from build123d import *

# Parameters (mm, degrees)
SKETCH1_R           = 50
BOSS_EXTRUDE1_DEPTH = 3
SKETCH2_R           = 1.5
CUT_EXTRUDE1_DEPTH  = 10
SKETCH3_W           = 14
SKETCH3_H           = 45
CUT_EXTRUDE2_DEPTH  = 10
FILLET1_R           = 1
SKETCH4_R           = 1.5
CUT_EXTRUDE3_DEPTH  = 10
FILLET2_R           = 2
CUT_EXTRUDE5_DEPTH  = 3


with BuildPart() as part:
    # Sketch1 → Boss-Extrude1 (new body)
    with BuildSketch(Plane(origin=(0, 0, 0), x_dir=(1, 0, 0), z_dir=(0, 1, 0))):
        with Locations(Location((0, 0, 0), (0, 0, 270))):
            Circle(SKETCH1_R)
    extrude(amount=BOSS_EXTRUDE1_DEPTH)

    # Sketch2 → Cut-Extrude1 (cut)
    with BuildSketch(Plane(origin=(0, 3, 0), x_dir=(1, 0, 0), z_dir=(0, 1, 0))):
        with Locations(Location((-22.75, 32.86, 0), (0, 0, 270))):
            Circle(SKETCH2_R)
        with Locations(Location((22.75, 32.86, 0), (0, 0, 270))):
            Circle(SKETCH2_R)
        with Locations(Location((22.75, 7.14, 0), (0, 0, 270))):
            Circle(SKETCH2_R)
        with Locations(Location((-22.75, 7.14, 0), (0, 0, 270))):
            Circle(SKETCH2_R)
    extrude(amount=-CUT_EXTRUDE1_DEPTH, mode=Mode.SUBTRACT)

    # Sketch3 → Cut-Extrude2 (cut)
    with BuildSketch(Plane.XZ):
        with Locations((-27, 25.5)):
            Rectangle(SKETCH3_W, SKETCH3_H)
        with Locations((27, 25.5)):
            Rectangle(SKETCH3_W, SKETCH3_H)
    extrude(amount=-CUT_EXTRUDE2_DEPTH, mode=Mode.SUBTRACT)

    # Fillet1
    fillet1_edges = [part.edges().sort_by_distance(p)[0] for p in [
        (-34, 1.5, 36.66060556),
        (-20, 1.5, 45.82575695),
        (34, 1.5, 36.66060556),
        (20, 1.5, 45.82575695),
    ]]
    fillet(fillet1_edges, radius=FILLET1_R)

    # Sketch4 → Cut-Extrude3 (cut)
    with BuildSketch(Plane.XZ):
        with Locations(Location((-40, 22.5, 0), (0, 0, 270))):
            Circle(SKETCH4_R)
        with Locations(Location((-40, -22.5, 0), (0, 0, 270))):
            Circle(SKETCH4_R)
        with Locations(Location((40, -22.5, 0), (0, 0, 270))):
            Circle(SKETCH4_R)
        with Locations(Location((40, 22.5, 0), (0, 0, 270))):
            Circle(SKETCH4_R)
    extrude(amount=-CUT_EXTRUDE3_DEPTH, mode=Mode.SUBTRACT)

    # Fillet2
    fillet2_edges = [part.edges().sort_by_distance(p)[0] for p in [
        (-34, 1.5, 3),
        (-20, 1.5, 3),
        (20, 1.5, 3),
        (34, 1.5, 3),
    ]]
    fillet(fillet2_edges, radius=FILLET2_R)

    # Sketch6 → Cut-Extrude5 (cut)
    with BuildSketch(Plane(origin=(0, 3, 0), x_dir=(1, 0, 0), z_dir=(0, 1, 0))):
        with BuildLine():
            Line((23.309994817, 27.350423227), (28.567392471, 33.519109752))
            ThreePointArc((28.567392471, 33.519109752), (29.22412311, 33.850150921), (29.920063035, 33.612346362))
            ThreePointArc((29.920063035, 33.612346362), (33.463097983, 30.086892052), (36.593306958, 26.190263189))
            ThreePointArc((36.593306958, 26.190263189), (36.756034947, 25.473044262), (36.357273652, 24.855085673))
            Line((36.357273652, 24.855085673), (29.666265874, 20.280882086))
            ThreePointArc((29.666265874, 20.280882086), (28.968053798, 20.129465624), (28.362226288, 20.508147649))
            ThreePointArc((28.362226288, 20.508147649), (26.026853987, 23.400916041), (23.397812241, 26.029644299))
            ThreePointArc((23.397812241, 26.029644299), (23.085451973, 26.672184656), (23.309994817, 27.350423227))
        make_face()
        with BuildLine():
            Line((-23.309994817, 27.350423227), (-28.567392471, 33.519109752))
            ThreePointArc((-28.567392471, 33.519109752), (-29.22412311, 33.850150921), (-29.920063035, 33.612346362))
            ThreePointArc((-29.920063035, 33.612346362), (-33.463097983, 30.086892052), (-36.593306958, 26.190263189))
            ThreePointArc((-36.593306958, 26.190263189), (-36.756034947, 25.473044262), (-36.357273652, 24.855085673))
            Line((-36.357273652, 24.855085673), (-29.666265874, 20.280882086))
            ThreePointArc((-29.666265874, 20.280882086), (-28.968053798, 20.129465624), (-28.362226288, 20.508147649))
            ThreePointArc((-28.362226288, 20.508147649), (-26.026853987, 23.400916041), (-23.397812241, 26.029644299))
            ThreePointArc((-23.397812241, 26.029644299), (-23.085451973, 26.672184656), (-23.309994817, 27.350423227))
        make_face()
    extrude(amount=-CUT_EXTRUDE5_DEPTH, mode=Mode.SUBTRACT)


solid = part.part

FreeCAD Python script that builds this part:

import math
import FreeCAD as App
import Part
import Sketcher

V = App.Vector
Q = App.Units.Quantity


def edges_at(feature, points):
    """Names of the edges that pass closest to the given points."""
    edges = feature.Shape.Edges
    near = lambda p: min(range(len(edges)), key=lambda i: edges[i].distToShape(Part.Vertex(*p))[0])
    return sorted({f"Edge{near(p) + 1}" for p in points})

doc = App.newDocument("Part")
body = doc.addObject("PartDesign::Body", "Body")

# Sketch on XZ plane
sketch1 = doc.addObject("Sketcher::SketchObject", "Sketch")
body.addObject(sketch1)
sketch1.AttachmentSupport = (doc.XZ_Plane, [""])
sketch1.MapMode = "FlatFace"
sketch1.addGeometry(Part.Circle(V(0, 0, 0), V(0, 0, 1), 50), False)
sketch1.addConstraint([
    Sketcher.Constraint("Coincident", 0, 3, -1, 1),
    Sketcher.Constraint("Diameter", 0, Q("100 mm")),
])
pad1 = doc.addObject("PartDesign::Pad", "Pad")
body.addObject(pad1)
pad1.Profile = sketch1
pad1.Length = 3
pad1.Reversed = True

# Sketch on XZ plane
sketch2 = doc.addObject("Sketcher::SketchObject", "Sketch001")
body.addObject(sketch2)
sketch2.AttachmentSupport = (doc.XZ_Plane, [""])
sketch2.MapMode = "FlatFace"
sketch2.AttachmentOffset = App.Placement(V(0, 0, -3), App.Rotation())
sketch2.addGeometry([
    Part.Circle(V(-22.8, -32.9, 0), V(0, 0, 1), 1.5),
    Part.Circle(V(22.8, -32.9, 0), V(0, 0, 1), 1.5),
    Part.Circle(V(22.8, -7.1, 0), V(0, 0, 1), 1.5),
    Part.Circle(V(-22.8, -7.1, 0), V(0, 0, 1), 1.5),
], False)
sketch2.addConstraint([
    Sketcher.Constraint("Equal", 0, 1),
    Sketcher.Constraint("Equal", 1, 2),
    Sketcher.Constraint("Equal", 2, 3),
    Sketcher.Constraint("Symmetric", 0, 3, 1, 3, -2),
    Sketcher.Constraint("Symmetric", 2, 3, 3, 3, -2),
    Sketcher.Constraint("Vertical", 1, 3, 2, 3),
    Sketcher.Constraint("Diameter", 0, Q("3 mm")),
    Sketcher.Constraint("DistanceX", 0, 3, 1, 3, Q("45.5 mm")),
    Sketcher.Constraint("DistanceY", 0, 3, -1, 1, Q("32.86 mm")),
    Sketcher.Constraint("DistanceY", 2, 3, -1, 1, Q("7.14 mm")),
])
pocket1 = doc.addObject("PartDesign::Pocket", "Pocket")
body.addObject(pocket1)
pocket1.Profile = sketch2
pocket1.Length = 10
pocket1.Reversed = True

# Sketch on XZ plane
sketch3 = doc.addObject("Sketcher::SketchObject", "Sketch002")
body.addObject(sketch3)
sketch3.AttachmentSupport = (doc.XZ_Plane, [""])
sketch3.MapMode = "FlatFace"
sketch3.addGeometry([
    Part.LineSegment(V(-34, 48, 0), V(-34, 3, 0)),  # 0
    Part.LineSegment(V(-34, 3, 0), V(-20, 3, 0)),  # 1
    Part.LineSegment(V(-20, 3, 0), V(-20, 48, 0)),  # 2
    Part.LineSegment(V(-20, 48, 0), V(-34, 48, 0)),  # 3
    Part.LineSegment(V(20, 48, 0), V(20, 3, 0)),  # 4
    Part.LineSegment(V(20, 3, 0), V(34, 3, 0)),  # 5
    Part.LineSegment(V(34, 3, 0), V(34, 48, 0)),  # 6
    Part.LineSegment(V(34, 48, 0), V(20, 48, 0)),  # 7
], False)
sketch3.addConstraint([
    Sketcher.Constraint("Coincident", 0, 2, 1, 1),
    Sketcher.Constraint("Coincident", 1, 2, 2, 1),
    Sketcher.Constraint("Coincident", 2, 2, 3, 1),
    Sketcher.Constraint("Coincident", 3, 2, 0, 1),
    Sketcher.Constraint("Coincident", 4, 2, 5, 1),
    Sketcher.Constraint("Coincident", 5, 2, 6, 1),
    Sketcher.Constraint("Coincident", 6, 2, 7, 1),
    Sketcher.Constraint("Coincident", 7, 2, 4, 1),
    Sketcher.Constraint("Vertical", 0),
    Sketcher.Constraint("Horizontal", 1),
    Sketcher.Constraint("Vertical", 2),
    Sketcher.Constraint("Horizontal", 3),
    Sketcher.Constraint("Vertical", 4),
    Sketcher.Constraint("Horizontal", 5),
    Sketcher.Constraint("Vertical", 6),
    Sketcher.Constraint("Horizontal", 7),
    Sketcher.Constraint("Symmetric", 1, 2, 4, 2, -2),
    Sketcher.Constraint("Symmetric", 3, 2, 6, 2, -2),
    Sketcher.Constraint("DistanceX", 1, 1, 1, 2, Q("14 mm")),
    Sketcher.Constraint("DistanceY", 0, 2, 0, 1, Q("45 mm")),
    Sketcher.Constraint("DistanceX", 0, 2, -1, 1, Q("34 mm")),
    Sketcher.Constraint("DistanceY", -1, 1, 0, 2, Q("3 mm")),
])
pocket2 = doc.addObject("PartDesign::Pocket", "Pocket001")
body.addObject(pocket2)
pocket2.Profile = sketch3
pocket2.Length = 10
doc.recompute()

fillet = doc.addObject("PartDesign::Fillet", "Fillet")
body.addObject(fillet)
fillet.Base = (pocket2, edges_at(pocket2, [
    (-34, 1.5, 36.661),
    (-20, 1.5, 45.826),
    (34, 1.5, 36.661),
    (20, 1.5, 45.826),
]))
fillet.Radius = 1

# Sketch on XZ plane
sketch4 = doc.addObject("Sketcher::SketchObject", "Sketch003")
body.addObject(sketch4)
sketch4.AttachmentSupport = (doc.XZ_Plane, [""])
sketch4.MapMode = "FlatFace"
sketch4.addGeometry([
    Part.Circle(V(-40, 22.5, 0), V(0, 0, 1), 1.5),
    Part.Circle(V(-40, -22.5, 0), V(0, 0, 1), 1.5),
    Part.Circle(V(40, -22.5, 0), V(0, 0, 1), 1.5),
    Part.Circle(V(40, 22.5, 0), V(0, 0, 1), 1.5),
], False)
sketch4.addConstraint([
    Sketcher.Constraint("Equal", 0, 1),
    Sketcher.Constraint("Equal", 1, 2),
    Sketcher.Constraint("Equal", 2, 3),
    Sketcher.Constraint("Symmetric", 0, 3, 2, 3, -1, 1),
    Sketcher.Constraint("Symmetric", 1, 3, 3, 3, -1, 1),
    Sketcher.Constraint("Symmetric", 1, 3, 2, 3, -2),
    Sketcher.Constraint("Diameter", 0, Q("3 mm")),
    Sketcher.Constraint("DistanceX", 0, 3, -1, 1, Q("40 mm")),
    Sketcher.Constraint("DistanceY", 1, 3, 0, 3, Q("45 mm")),
])
pocket3 = doc.addObject("PartDesign::Pocket", "Pocket002")
body.addObject(pocket3)
pocket3.Profile = sketch4
pocket3.Length = 10
doc.recompute()

fillet2 = doc.addObject("PartDesign::Fillet", "Fillet001")
body.addObject(fillet2)
fillet2.Base = (pocket3, edges_at(pocket3, [
    (-34, 1.5, 3),
    (-20, 1.5, 3),
    (20, 1.5, 3),
    (34, 1.5, 3),
]))
fillet2.Radius = 2

# Sketch on XZ plane
sketch5 = doc.addObject("Sketcher::SketchObject", "Sketch004")
body.addObject(sketch5)
sketch5.AttachmentSupport = (doc.XZ_Plane, [""])
sketch5.MapMode = "FlatFace"
sketch5.AttachmentOffset = App.Placement(V(0, 0, -3), App.Rotation())
sketch5.addGeometry([
    Part.LineSegment(V(28.6, -33.5, 0), V(23.3, -27.4, 0)),  # 0
    Part.ArcOfCircle(Part.Circle(V(24, -26.7, 0), V(0, 0, 1), 0.9), math.radians(132), math.radians(220)),  # 1
    Part.ArcOfCircle(Part.Circle(V(0, 0, 0), V(0, 0, 1), 35), math.radians(-48.05), math.radians(-35.87)),  # 2
    Part.ArcOfCircle(Part.Circle(V(29.1, -21.1, 0), V(0, 0, 1), 0.9), math.radians(56), math.radians(144)),  # 3
    Part.LineSegment(V(29.7, -20.3, 0), V(36.4, -24.9, 0)),  # 4
    Part.ArcOfCircle(Part.Circle(V(35.8, -25.6, 0), V(0, 0, 1), 0.9), math.radians(-36), math.radians(56)),  # 5
    Part.ArcOfCircle(Part.Circle(V(0, 0, 0), V(0, 0, 1), 45), math.radians(-48.33), math.radians(-35.59)),  # 6
    Part.ArcOfCircle(Part.Circle(V(29.3, -32.9, 0), V(0, 0, 1), 0.9), math.radians(-140), math.radians(-48)),  # 7
    Part.LineSegment(V(-23.3, -27.4, 0), V(-28.6, -33.5, 0)),  # 8
    Part.ArcOfCircle(Part.Circle(V(-29.3, -32.9, 0), V(0, 0, 1), 0.9), math.radians(-132), math.radians(-40)),  # 9
    Part.ArcOfCircle(Part.Circle(V(0, 0, 0), V(0, 0, 1), 45), math.radians(-144.41), math.radians(-131.67)),  # 10
    Part.ArcOfCircle(Part.Circle(V(-35.8, -25.6, 0), V(0, 0, 1), 0.9), math.radians(124), math.radians(216)),  # 11
    Part.LineSegment(V(-36.4, -24.9, 0), V(-29.7, -20.3, 0)),  # 12
    Part.ArcOfCircle(Part.Circle(V(-29.1, -21.1, 0), V(0, 0, 1), 0.9), math.radians(36), math.radians(124)),  # 13
    Part.ArcOfCircle(Part.Circle(V(0, 0, 0), V(0, 0, 1), 35), math.radians(-144.13), math.radians(-131.95)),  # 14
    Part.ArcOfCircle(Part.Circle(V(-24, -26.7, 0), V(0, 0, 1), 0.9), math.radians(-40), math.radians(48)),  # 15
], False)
sketch5.addConstraint([
    Sketcher.Constraint("Tangent", 0, 2, 1, 2),
    Sketcher.Constraint("Tangent", 1, 1, 2, 1),
    Sketcher.Constraint("Tangent", 2, 2, 3, 2),
    Sketcher.Constraint("Tangent", 3, 1, 4, 1),
    Sketcher.Constraint("Tangent", 4, 2, 5, 2),
    Sketcher.Constraint("Tangent", 5, 1, 6, 2),
    Sketcher.Constraint("Tangent", 6, 1, 7, 2),
    Sketcher.Constraint("Tangent", 7, 1, 0, 1),
    Sketcher.Constraint("Tangent", 8, 2, 9, 2),
    Sketcher.Constraint("Tangent", 9, 1, 10, 2),
    Sketcher.Constraint("Tangent", 10, 1, 11, 2),
    Sketcher.Constraint("Tangent", 11, 1, 12, 1),
    Sketcher.Constraint("Tangent", 12, 2, 13, 2),
    Sketcher.Constraint("Tangent", 13, 1, 14, 1),
    Sketcher.Constraint("Tangent", 14, 2, 15, 2),
    Sketcher.Constraint("Tangent", 15, 1, 8, 1),
    Sketcher.Constraint("Coincident", 2, 3, -1, 1),
    Sketcher.Constraint("Coincident", 6, 3, -1, 1),
    Sketcher.Constraint("Coincident", 10, 3, -1, 1),
    Sketcher.Constraint("Coincident", 14, 3, -1, 1),
    Sketcher.Constraint("Equal", 1, 3),
    Sketcher.Constraint("Equal", 3, 5),
    Sketcher.Constraint("Equal", 5, 7),
    Sketcher.Constraint("Equal", 7, 9),
    Sketcher.Constraint("Equal", 6, 10),
    Sketcher.Constraint("Equal", 9, 11),
    Sketcher.Constraint("Equal", 11, 13),
    Sketcher.Constraint("Equal", 2, 14),
    Sketcher.Constraint("Equal", 13, 15),
    Sketcher.Constraint("Symmetric", 7, 1, 8, 2, -2),
    Sketcher.Constraint("Symmetric", 4, 2, 11, 1, -2),
    Sketcher.Constraint("Equal", 0, 4),
    Sketcher.Constraint("Radius", 2, Q("35 mm")),
    Sketcher.Constraint("Radius", 6, Q("45 mm")),
    Sketcher.Constraint("Angle", 0, Q("130.44002 deg")),
    Sketcher.Constraint("Radius", 1, Q("0.948593 mm")),
    Sketcher.Constraint("DistanceX", 2, 2, 5, 3, Q("7.459699 mm")),
    Sketcher.Constraint("DistanceY", 7, 1, -1, 1, Q("33.51911 mm")),
])
pocket4 = doc.addObject("PartDesign::Pocket", "Pocket003")
body.addObject(pocket4)
pocket4.Profile = sketch5
pocket4.Length = 3
pocket4.Reversed = True

doc.recompute()
